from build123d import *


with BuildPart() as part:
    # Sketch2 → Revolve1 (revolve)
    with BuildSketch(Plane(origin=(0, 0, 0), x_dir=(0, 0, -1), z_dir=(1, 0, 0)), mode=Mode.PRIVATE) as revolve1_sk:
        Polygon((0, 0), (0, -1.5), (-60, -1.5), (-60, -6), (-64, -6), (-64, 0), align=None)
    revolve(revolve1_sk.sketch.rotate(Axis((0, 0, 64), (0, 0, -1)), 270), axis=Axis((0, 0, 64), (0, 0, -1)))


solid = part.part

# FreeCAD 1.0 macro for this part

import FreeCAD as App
import Part
import Sketcher
from FreeCAD import Vector
Q = App.Units.Quantity

doc = App.newDocument("Part")
body = doc.addObject("PartDesign::Body", "Body")

sketch1 = body.newObject("Sketcher::SketchObject", "Sketch")
sketch1.AttachmentSupport = (doc.getObject("YZ_Plane"), [""])
sketch1.MapMode = "FlatFace"
sketch1.addGeometry([
    Part.LineSegment(Vector(-1.5, 0, 0), Vector(0, 0, 0)),
    Part.LineSegment(Vector(0, 0, 0), Vector(0, 64, 0)),
    Part.LineSegment(Vector(0, 64, 0), Vector(-6, 64, 0)),
    Part.LineSegment(Vector(-6, 64, 0), Vector(-6, 60, 0)),
    Part.LineSegment(Vector(-6, 60, 0), Vector(-1.5, 60, 0)),
    Part.LineSegment(Vector(-1.5, 60, 0), Vector(-1.5, 0, 0)),
], False)
sketch1.addConstraint([
    Sketcher.Constraint("Coincident", 0, 2, 1, 1),
    Sketcher.Constraint("Coincident", 1, 2, 2, 1),
    Sketcher.Constraint("Coincident", 2, 2, 3, 1),
    Sketcher.Constraint("Coincident", 3, 2, 4, 1),
    Sketcher.Constraint("Coincident", 4, 2, 5, 1),
    Sketcher.Constraint("Coincident", 5, 2, 0, 1),
    Sketcher.Constraint("Horizontal", 0),
    Sketcher.Constraint("Vertical", 1),
    Sketcher.Constraint("Horizontal", 2),
    Sketcher.Constraint("Vertical", 3),
    Sketcher.Constraint("Horizontal", 4),
    Sketcher.Constraint("Vertical", 5),
    Sketcher.Constraint("Coincident", 0, 2, -1, 1),
    Sketcher.Constraint("DistanceX", 2, 2, 2, 1, Q("6 mm")),
    Sketcher.Constraint("DistanceY", 1, 1, 1, 2, Q("64 mm")),
    Sketcher.Constraint("DistanceY", 3, 2, 3, 1, Q("4 mm")),
    Sketcher.Constraint("DistanceX", 0, 1, 0, 2, Q("1.5 mm")),
])
revolution = body.newObject("PartDesign::Revolution", "Revolution")
revolution.Profile = sketch1
revolution.ReferenceAxis = (sketch1, ["V_Axis"])
revolution.Angle = 360

doc.recompute()
